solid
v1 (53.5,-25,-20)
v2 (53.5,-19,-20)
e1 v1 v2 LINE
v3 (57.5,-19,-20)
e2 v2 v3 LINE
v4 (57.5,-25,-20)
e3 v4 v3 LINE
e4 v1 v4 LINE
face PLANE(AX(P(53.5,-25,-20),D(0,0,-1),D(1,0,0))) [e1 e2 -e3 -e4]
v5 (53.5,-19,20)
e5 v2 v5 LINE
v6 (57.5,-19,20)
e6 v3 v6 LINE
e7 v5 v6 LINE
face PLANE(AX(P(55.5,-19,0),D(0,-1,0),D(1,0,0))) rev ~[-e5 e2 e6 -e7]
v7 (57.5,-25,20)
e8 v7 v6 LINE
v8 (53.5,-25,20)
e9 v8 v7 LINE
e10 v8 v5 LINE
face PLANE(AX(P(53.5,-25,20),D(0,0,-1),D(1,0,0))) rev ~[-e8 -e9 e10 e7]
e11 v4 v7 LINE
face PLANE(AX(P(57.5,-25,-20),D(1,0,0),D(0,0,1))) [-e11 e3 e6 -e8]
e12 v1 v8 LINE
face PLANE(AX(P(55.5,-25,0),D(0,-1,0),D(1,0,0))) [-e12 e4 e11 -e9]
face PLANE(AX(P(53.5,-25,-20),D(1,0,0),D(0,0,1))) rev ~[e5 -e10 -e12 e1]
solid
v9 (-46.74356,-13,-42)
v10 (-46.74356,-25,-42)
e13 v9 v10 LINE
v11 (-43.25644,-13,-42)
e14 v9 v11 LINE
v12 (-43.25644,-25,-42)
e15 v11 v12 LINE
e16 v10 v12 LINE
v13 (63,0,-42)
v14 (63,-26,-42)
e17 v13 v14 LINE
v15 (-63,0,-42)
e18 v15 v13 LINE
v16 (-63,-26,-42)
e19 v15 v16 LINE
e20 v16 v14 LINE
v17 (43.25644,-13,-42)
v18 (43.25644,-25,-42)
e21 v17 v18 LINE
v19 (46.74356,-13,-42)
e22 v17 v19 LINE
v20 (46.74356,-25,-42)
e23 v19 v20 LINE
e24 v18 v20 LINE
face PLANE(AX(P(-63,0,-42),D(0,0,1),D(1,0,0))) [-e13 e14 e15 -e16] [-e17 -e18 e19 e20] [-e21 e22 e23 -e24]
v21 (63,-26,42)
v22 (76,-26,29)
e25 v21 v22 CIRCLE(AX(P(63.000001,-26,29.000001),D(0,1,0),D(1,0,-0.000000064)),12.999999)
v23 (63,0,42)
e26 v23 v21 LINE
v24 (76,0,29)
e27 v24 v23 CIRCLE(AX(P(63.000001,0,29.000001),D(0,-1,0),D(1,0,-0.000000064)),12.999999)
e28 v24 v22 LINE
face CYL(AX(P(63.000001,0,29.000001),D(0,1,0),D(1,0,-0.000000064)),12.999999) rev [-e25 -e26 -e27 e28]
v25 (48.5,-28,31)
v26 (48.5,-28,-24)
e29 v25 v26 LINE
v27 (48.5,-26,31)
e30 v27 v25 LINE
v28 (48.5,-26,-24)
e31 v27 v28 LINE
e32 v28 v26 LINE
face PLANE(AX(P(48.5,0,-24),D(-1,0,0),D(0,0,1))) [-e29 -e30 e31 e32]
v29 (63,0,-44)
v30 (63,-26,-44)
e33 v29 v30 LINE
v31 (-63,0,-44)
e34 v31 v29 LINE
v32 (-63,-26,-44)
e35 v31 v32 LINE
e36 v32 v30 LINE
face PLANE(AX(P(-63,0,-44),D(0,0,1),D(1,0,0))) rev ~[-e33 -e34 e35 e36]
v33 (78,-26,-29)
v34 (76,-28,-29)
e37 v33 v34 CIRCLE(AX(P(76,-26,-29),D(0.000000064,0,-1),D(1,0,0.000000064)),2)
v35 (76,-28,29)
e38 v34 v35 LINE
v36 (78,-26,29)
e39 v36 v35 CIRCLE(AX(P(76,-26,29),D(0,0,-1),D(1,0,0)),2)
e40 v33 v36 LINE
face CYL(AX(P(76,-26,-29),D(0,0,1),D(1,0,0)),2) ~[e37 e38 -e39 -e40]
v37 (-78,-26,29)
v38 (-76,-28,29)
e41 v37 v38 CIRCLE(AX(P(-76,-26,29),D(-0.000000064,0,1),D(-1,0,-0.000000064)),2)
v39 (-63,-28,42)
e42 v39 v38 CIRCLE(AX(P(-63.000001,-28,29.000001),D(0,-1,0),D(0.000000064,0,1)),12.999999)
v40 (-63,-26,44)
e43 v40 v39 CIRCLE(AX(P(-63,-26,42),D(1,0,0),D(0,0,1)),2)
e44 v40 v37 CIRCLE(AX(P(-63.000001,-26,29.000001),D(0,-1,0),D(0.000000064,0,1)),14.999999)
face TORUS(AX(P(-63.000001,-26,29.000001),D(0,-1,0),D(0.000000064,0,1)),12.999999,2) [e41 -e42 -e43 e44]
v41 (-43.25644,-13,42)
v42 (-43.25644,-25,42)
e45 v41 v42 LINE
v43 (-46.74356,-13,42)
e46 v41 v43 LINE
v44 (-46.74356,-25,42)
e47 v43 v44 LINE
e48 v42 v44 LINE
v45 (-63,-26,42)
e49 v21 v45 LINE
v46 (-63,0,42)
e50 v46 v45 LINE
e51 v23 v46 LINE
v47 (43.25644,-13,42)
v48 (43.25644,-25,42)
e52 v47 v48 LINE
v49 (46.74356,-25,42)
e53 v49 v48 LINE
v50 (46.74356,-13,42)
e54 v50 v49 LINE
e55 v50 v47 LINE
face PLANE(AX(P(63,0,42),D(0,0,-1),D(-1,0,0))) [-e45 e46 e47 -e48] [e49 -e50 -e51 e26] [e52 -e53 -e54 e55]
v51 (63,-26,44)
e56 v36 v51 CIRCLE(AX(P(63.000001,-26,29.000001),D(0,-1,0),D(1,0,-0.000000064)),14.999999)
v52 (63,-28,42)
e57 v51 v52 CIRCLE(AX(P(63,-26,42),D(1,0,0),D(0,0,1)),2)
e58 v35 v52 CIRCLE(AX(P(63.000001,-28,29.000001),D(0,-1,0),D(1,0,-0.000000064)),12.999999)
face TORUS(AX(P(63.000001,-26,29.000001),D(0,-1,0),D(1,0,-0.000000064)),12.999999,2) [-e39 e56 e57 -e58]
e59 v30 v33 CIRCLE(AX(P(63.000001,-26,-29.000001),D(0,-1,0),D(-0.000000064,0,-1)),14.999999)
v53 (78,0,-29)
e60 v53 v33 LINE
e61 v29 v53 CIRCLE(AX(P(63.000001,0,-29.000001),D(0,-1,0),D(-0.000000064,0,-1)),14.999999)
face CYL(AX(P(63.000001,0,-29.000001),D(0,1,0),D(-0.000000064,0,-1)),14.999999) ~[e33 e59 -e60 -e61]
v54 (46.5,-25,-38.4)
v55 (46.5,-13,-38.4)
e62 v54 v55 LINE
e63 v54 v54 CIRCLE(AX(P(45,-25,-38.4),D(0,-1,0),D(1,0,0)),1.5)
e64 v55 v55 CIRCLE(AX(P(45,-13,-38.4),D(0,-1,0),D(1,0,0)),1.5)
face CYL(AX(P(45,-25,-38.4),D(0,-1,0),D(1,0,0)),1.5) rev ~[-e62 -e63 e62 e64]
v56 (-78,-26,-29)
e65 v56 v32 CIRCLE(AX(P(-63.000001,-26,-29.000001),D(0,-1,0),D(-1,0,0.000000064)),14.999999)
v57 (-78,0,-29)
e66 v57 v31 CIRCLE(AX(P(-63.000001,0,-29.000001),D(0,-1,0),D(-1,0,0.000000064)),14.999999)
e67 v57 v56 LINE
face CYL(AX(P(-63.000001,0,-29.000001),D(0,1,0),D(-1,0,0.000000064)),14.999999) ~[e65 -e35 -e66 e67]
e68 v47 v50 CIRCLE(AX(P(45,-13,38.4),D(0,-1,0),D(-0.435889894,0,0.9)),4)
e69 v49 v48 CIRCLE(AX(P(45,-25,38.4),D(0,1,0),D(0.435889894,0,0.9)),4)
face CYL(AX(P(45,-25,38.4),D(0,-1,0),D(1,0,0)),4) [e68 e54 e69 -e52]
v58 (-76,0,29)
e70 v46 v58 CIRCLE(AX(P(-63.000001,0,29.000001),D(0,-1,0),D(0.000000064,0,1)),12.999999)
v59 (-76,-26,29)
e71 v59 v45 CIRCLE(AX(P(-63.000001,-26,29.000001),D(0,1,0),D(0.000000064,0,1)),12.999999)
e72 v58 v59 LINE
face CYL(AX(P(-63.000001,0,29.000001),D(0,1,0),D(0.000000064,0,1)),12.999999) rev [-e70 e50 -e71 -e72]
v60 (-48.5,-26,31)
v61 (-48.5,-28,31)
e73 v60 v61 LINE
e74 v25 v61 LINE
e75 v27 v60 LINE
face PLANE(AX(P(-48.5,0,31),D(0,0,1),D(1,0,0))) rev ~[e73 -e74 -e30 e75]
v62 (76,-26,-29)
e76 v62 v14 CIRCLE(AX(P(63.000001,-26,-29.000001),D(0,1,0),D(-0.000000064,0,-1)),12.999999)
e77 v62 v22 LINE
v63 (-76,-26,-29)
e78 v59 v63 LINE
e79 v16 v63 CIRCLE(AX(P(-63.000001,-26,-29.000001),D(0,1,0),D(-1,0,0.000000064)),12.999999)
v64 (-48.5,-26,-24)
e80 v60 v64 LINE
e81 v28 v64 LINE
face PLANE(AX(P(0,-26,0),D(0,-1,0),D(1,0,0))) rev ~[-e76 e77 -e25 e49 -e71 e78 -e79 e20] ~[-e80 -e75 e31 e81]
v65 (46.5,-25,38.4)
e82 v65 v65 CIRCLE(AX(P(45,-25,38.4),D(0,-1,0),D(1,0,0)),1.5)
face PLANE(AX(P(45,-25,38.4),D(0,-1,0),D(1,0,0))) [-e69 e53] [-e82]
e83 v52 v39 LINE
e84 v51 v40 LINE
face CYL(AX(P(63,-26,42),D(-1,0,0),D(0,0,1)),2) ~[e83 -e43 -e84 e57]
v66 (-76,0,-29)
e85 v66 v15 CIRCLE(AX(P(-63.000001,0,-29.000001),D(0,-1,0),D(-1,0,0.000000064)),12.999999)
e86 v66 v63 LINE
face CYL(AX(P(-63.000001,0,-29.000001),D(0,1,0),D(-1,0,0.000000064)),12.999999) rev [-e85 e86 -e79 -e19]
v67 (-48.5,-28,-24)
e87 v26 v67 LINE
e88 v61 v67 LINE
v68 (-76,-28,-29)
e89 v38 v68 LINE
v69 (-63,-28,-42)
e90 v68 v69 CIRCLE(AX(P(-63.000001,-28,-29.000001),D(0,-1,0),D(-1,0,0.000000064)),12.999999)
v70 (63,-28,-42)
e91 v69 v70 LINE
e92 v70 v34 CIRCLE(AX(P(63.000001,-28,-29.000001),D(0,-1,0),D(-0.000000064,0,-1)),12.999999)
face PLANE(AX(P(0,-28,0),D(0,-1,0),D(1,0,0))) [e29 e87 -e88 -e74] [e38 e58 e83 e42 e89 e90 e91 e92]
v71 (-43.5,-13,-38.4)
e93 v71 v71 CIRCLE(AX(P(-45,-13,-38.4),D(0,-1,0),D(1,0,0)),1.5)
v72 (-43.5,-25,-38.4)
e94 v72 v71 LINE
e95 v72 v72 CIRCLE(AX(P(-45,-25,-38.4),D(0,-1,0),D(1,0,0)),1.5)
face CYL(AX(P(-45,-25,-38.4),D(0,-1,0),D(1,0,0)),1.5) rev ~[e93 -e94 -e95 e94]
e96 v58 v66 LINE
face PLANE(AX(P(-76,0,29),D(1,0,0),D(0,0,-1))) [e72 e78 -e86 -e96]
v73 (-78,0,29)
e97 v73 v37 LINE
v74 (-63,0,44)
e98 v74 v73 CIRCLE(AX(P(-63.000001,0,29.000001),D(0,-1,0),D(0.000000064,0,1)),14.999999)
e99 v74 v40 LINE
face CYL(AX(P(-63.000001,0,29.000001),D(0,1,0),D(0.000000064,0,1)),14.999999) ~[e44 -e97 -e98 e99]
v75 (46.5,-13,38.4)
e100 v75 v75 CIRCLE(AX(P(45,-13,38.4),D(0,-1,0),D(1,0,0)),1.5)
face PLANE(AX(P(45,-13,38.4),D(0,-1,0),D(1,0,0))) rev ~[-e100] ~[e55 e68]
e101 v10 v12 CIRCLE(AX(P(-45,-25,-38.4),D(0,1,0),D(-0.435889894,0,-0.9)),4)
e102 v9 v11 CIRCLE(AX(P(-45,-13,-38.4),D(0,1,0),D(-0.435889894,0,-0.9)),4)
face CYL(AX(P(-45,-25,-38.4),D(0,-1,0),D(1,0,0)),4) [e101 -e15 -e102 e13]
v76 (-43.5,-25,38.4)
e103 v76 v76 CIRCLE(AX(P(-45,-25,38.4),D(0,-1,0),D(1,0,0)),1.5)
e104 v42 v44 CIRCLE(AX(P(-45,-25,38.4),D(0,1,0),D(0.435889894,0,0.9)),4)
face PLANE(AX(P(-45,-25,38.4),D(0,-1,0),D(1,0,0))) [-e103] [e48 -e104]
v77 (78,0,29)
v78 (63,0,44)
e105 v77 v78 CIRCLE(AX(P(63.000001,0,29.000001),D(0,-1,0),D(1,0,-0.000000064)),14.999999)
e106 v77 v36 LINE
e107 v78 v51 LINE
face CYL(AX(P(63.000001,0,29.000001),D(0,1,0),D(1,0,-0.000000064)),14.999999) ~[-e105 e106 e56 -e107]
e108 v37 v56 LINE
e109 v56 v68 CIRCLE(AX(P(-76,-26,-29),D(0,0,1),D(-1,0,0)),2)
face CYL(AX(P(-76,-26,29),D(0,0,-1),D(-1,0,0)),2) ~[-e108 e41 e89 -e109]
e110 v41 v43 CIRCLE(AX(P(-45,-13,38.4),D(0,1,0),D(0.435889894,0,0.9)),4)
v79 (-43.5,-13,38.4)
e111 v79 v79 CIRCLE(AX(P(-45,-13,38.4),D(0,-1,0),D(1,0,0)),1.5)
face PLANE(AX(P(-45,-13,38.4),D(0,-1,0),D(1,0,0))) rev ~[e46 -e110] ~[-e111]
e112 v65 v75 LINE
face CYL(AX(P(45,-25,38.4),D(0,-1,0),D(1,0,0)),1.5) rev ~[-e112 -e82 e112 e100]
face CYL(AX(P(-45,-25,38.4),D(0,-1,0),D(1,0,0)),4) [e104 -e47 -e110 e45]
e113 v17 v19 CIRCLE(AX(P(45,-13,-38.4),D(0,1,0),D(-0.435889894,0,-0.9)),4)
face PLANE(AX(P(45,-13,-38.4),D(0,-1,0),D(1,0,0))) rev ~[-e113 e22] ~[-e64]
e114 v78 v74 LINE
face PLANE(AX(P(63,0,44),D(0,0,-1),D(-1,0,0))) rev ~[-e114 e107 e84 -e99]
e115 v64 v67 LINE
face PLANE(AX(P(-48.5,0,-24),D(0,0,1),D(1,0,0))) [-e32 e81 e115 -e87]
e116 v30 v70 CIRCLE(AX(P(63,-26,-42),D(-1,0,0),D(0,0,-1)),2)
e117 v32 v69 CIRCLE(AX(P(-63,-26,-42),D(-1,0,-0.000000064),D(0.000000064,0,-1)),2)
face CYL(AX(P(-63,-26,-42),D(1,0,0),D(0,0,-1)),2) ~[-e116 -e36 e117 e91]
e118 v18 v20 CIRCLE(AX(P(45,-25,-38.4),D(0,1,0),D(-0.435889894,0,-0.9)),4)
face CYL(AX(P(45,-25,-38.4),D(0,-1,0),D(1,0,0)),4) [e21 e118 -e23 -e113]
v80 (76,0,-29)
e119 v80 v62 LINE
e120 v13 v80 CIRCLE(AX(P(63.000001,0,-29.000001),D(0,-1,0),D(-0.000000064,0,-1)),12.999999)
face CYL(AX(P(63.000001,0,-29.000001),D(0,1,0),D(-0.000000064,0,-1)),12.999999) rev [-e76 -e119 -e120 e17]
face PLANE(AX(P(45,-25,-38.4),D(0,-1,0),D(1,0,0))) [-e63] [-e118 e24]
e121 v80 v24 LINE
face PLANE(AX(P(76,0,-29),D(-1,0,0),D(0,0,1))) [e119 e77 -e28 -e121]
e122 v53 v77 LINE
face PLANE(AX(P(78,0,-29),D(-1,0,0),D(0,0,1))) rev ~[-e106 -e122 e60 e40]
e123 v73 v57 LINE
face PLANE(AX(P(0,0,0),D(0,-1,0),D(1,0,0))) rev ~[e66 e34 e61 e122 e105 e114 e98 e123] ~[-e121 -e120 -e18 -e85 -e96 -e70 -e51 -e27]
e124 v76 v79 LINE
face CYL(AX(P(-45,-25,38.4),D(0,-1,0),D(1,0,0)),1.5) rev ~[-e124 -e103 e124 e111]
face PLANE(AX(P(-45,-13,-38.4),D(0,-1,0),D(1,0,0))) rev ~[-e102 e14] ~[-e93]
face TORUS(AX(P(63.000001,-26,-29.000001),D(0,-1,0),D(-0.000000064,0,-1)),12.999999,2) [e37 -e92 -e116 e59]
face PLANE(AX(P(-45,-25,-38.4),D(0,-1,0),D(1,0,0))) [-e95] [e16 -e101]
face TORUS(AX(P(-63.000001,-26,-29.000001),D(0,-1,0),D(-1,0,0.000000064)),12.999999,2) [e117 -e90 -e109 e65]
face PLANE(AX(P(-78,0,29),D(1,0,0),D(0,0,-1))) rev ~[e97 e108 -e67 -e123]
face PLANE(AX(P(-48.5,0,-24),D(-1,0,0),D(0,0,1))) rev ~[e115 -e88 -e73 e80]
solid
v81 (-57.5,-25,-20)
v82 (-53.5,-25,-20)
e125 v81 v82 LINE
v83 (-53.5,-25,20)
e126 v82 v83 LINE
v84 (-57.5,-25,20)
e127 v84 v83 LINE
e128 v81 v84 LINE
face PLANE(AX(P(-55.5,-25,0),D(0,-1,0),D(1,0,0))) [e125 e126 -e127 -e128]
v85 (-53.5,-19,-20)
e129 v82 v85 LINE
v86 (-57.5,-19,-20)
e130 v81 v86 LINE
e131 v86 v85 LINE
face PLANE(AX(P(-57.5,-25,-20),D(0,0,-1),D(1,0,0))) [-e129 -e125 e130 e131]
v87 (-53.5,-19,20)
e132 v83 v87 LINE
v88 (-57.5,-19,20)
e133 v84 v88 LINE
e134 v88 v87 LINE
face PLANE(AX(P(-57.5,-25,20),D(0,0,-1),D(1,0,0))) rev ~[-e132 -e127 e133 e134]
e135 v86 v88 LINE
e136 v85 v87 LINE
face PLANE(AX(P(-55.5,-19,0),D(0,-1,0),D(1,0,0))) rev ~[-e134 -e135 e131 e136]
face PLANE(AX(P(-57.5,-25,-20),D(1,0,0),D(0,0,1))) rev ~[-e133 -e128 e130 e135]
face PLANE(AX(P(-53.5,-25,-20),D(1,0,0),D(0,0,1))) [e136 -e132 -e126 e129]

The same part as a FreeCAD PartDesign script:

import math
import FreeCAD as App
import Part
import Sketcher
from FreeCAD import Vector


def edges_at(feature, points):
    """Names of the edges that pass closest to the given points."""
    edges = feature.Shape.Edges
    near = lambda p: min(range(len(edges)), key=lambda i: edges[i].distToShape(Part.Vertex(*p))[0])
    return sorted({f"Edge{near(p) + 1}" for p in points})


def faces_at(feature, points):
    """Names of the faces that lie closest to the given points."""
    faces = feature.Shape.Faces
    near = lambda p: min(range(len(faces)), key=lambda i: faces[i].distToShape(Part.Vertex(*p))[0])
    return sorted({f"Face{near(p) + 1}" for p in points})


def add_polygon(sketch, points):
    """Adds a closed chain of lines whose ends are joined by coincident constraints."""
    first, n = sketch.GeometryCount, len(points)
    for a, b in zip(points, points[1:] + points[:1]):
        sketch.addGeometry(Part.LineSegment(App.Vector(*a, 0), App.Vector(*b, 0)), False)
    for i in range(n):
        sketch.addConstraint(Sketcher.Constraint("Coincident", first + i, 2, first + (i + 1) % n, 1))

doc = App.newDocument("Part")
params = doc.addObject("Spreadsheet::Sheet", "Params")
for row, (alias, value) in enumerate([
    ("sketch1_radius", "14.999999 mm"),
    ("sketch1_width", "126 mm"),
    ("sketch1_height", "58 mm"),
    ("pad1_length", "28 mm"),
    ("thickness_wall", "2 mm"),
    ("sketch2_width", "97 mm"),
    ("sketch2_height", "55 mm"),
    ("pocket1_length", "50 mm"),
    ("fillet_radius", "2 mm"),
    ("sketch3_diameter", "8 mm"),
    ("sketch3_diameter2", "3 mm"),
    ("pad2_length", "12 mm"),
    ("sketch4_width", "4 mm"),
    ("sketch4_height", "40 mm"),
    ("pad3_length", "6 mm"),
], start=1):
    params.set(f"A{row}", alias)
    params.set(f"B{row}", "=" + value)
    params.setAlias(f"B{row}", alias)

body = doc.addObject("PartDesign::Body", "Body")

# Sketch on XZ plane
sketch1 = body.newObject("Sketcher::SketchObject", "Sketch")
sketch1.AttachmentSupport = (doc.getObject("XZ_Plane"), [""])
sketch1.MapMode = "FlatFace"
sketch1.addGeometry([
    Part.LineSegment(Vector(63, 44, 0), Vector(-63, 44, 0)),  # 0
    Part.ArcOfCircle(Part.Circle(Vector(-63, 29, 0), Vector(0, 0, 1), 15), math.radians(90), math.radians(180)),  # 1
    Part.LineSegment(Vector(-78, 29, 0), Vector(-78, -29, 0)),  # 2
    Part.ArcOfCircle(Part.Circle(Vector(-63, -29, 0), Vector(0, 0, 1), 15), math.radians(180), math.radians(270)),  # 3
    Part.LineSegment(Vector(-63, -44, 0), Vector(63, -44, 0)),  # 4
    Part.ArcOfCircle(Part.Circle(Vector(63, -29, 0), Vector(0, 0, 1), 15), math.radians(-90), math.radians(0)),  # 5
    Part.LineSegment(Vector(78, -29, 0), Vector(78, 29, 0)),  # 6
    Part.ArcOfCircle(Part.Circle(Vector(63, 29, 0), Vector(0, 0, 1), 15), math.radians(0), math.radians(90)),  # 7
], False)
sketch1.addConstraint([
    Sketcher.Constraint("Tangent", 0, 2, 1, 1),
    Sketcher.Constraint("Tangent", 1, 2, 2, 1),
    Sketcher.Constraint("Tangent", 2, 2, 3, 1),
    Sketcher.Constraint("Tangent", 3, 2, 4, 1),
    Sketcher.Constraint("Tangent", 4, 2, 5, 1),
    Sketcher.Constraint("Tangent", 5, 2, 6, 1),
    Sketcher.Constraint("Tangent", 6, 2, 7, 1),
    Sketcher.Constraint("Tangent", 7, 2, 0, 1),
    Sketcher.Constraint("Horizontal", 0),
    Sketcher.Constraint("Vertical", 2),
    Sketcher.Constraint("Horizontal", 4),
    Sketcher.Constraint("Vertical", 6),
    Sketcher.Constraint("Equal", 1, 3),
    Sketcher.Constraint("Equal", 3, 5),
    Sketcher.Constraint("Equal", 5, 7),
    Sketcher.Constraint("Symmetric", 1, 3, 5, 3, -1, 1),
    Sketcher.Constraint("Radius", 1, 14.999999),
    Sketcher.Constraint("DistanceX", 0, 2, 0, 1, 126.0),
    Sketcher.Constraint("DistanceY", 2, 2, 2, 1, 58.0),
])
sketch1.setExpression("Constraints[16]", "Params.sketch1_radius")
sketch1.setExpression("Constraints[17]", "Params.sketch1_width")
sketch1.setExpression("Constraints[18]", "Params.sketch1_height")
pad1 = body.newObject("PartDesign::Pad", "Pad")
pad1.Profile = sketch1
pad1.setExpression("Length", "Params.pad1_length")
doc.recompute()

thickness = body.newObject("PartDesign::Thickness", "Thickness")
thickness.Base = (pad1, faces_at(pad1, [(0, 0, 0)]))
thickness.setExpression("Value", "Params.thickness_wall")
thickness.Reversed = True
thickness.Join = "Arc"

# Sketch on XZ plane
sketch2 = body.newObject("Sketcher::SketchObject", "Sketch001")
sketch2.AttachmentSupport = (doc.getObject("XZ_Plane"), [""])
sketch2.MapMode = "FlatFace"
add_polygon(sketch2, [(-48, 31), (-48, -24), (48, -24), (48, 31)])  # lines 0-3
sketch2.addConstraint([
    Sketcher.Constraint("Vertical", 0),
    Sketcher.Constraint("Horizontal", 1),
    Sketcher.Constraint("Vertical", 2),
    Sketcher.Constraint("Horizontal", 3),
    Sketcher.Constraint("DistanceX", 1, 1, 1, 2, 97.0),
    Sketcher.Constraint("DistanceY", 0, 2, 0, 1, 55.0),
    Sketcher.Constraint("DistanceY", 0, 2, -1, 1, 24.0),
    Sketcher.Constraint("DistanceX", 0, 2, -1, 1, 48.5),
])
sketch2.setExpression("Constraints[8]", "Params.sketch2_width")
sketch2.setExpression("Constraints[9]", "Params.sketch2_height")
pocket1 = body.newObject("PartDesign::Pocket", "Pocket")
pocket1.Profile = sketch2
pocket1.setExpression("Length", "Params.pocket1_length")
pocket1.Reversed = True
doc.recompute()

fillet = body.newObject("PartDesign::Fillet", "Fillet")
fillet.Base = (pocket1, edges_at(pocket1, [(0, -28, 44), (78, -28, 0)]))
fillet.setExpression("Radius", "Params.fillet_radius")

# Sketch on XZ plane
sketch3 = body.newObject("Sketcher::SketchObject", "Sketch002")
sketch3.AttachmentSupport = (doc.getObject("XZ_Plane"), [""])
sketch3.MapMode = "FlatFace"
sketch3.AttachmentOffset = App.Placement(Vector(0, 0, 25), App.Rotation())
sketch3.addGeometry([
    Part.Circle(Vector(45, 38.4, 0), Vector(0, 0, 1), 4),  # 0
    Part.Circle(Vector(45, 38.4, 0), Vector(0, 0, 1), 1.5),  # 1
    Part.Circle(Vector(-45, 38.4, 0), Vector(0, 0, 1), 4),  # 2
    Part.Circle(Vector(-45, 38.4, 0), Vector(0, 0, 1), 1.5),  # 3
    Part.Circle(Vector(45, -38.4, 0), Vector(0, 0, 1), 4),  # 4
    Part.Circle(Vector(45, -38.4, 0), Vector(0, 0, 1), 1.5),  # 5
    Part.Circle(Vector(-45, -38.4, 0), Vector(0, 0, 1), 4),  # 6
    Part.Circle(Vector(-45, -38.4, 0), Vector(0, 0, 1), 1.5),  # 7
], False)
sketch3.addConstraint([
    Sketcher.Constraint("Coincident", 1, 3, 0, 3),
    Sketcher.Constraint("Coincident", 3, 3, 2, 3),
    Sketcher.Constraint("Coincident", 5, 3, 4, 3),
    Sketcher.Constraint("Coincident", 7, 3, 6, 3),
    Sketcher.Constraint("Equal", 0, 2),
    Sketcher.Constraint("Equal", 1, 3),
    Sketcher.Constraint("Equal", 2, 4),
    Sketcher.Constraint("Equal", 3, 5),
    Sketcher.Constraint("Equal", 4, 6),
    Sketcher.Constraint("Equal", 5, 7),
    Sketcher.Constraint("Symmetric", 2, 3, 4, 3, -1, 1),
    Sketcher.Constraint("Symmetric", 0, 3, 6, 3, -1, 1),
    Sketcher.Constraint("Symmetric", 0, 3, 2, 3, -2),
    Sketcher.Constraint("Diameter", 0, 8.0),
    Sketcher.Constraint("Diameter", 1, 3.0),
    Sketcher.Constraint("DistanceX", -1, 1, 0, 3, 45.0),
    Sketcher.Constraint("DistanceY", -1, 1, 0, 3, 38.4),
])
sketch3.setExpression("Constraints[13]", "Params.sketch3_diameter")
sketch3.setExpression("Constraints[14]", "Params.sketch3_diameter2")
pad2 = body.newObject("PartDesign::Pad", "Pad001")
pad2.Profile = sketch3
pad2.setExpression("Length", "Params.pad2_length")
pad2.Reversed = True
body2 = doc.addObject("PartDesign::Body", "Body001")
body2.AllowCompound = True

# Sketch on XZ plane
sketch4 = body2.newObject("Sketcher::SketchObject", "Sketch003")
sketch4.AttachmentSupport = (doc.getObject("XZ_Plane001"), [""])
sketch4.MapMode = "FlatFace"
sketch4.AttachmentOffset = App.Placement(Vector(0, 0, 25), App.Rotation())
add_polygon(sketch4, [(53.5, 20), (53.5, -20), (57.5, -20), (57.5, 20)])  # lines 0-3
add_polygon(sketch4, [(-57.5, 20), (-57.5, -20), (-53.5, -20), (-53.5, 20)])  # lines 4-7
sketch4.addConstraint([
    Sketcher.Constraint("Vertical", 0),
    Sketcher.Constraint("Horizontal", 1),
    Sketcher.Constraint("Vertical", 2),
    Sketcher.Constraint("Horizontal", 3),
    Sketcher.Constraint("Vertical", 4),
    Sketcher.Constraint("Horizontal", 5),
    Sketcher.Constraint("Vertical", 6),
    Sketcher.Constraint("Horizontal", 7),
    Sketcher.Constraint("Symmetric", 2, 2, 4, 2, -1, 1),
    Sketcher.Constraint("Symmetric", 0, 2, 6, 2, -1, 1),
    Sketcher.Constraint("Horizontal", 1, 2, 4, 2),
    Sketcher.Constraint("DistanceX", 1, 1, 1, 2, 4.0),
    Sketcher.Constraint("DistanceY", 0, 2, 0, 1, 40.0),
    Sketcher.Constraint("DistanceX", 4, 2, 0, 2, 111.0),
])
sketch4.setExpression("Constraints[19]", "Params.sketch4_width")
sketch4.setExpression("Constraints[20]", "Params.sketch4_height")
pad3 = body2.newObject("PartDesign::Pad", "Pad002")
pad3.Profile = sketch4
pad3.setExpression("Length", "Params.pad3_length")
pad3.Reversed = True

doc.recompute()
